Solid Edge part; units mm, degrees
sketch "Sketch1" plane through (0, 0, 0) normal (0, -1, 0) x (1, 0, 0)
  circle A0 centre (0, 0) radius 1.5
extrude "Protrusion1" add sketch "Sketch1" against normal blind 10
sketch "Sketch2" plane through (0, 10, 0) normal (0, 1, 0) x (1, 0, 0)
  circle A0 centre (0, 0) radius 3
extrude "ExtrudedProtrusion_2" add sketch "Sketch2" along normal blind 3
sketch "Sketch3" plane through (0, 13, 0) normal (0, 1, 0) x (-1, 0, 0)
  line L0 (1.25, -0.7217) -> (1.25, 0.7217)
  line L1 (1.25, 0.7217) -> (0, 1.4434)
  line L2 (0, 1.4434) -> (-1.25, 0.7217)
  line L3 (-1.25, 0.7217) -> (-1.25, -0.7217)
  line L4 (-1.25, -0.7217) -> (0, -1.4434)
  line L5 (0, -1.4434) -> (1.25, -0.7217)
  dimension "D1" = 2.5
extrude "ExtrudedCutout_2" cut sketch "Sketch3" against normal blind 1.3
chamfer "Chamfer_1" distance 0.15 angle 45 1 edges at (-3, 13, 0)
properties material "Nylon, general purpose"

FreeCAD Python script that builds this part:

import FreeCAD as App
import Part
import Sketcher
Q = App.Units.Quantity


def edges_at(feature, points):
    """Names of the edges that pass closest to the given points."""
    edges = feature.Shape.Edges
    near = lambda p: min(range(len(edges)), key=lambda i: edges[i].distToShape(Part.Vertex(*p))[0])
    return sorted({f"Edge{near(p) + 1}" for p in points})

doc = App.newDocument("Part")
params = doc.addObject("Spreadsheet::Sheet", "Params")
for row, (alias, value) in enumerate([
    ("sketch1_diameter", "3 mm"),
    ("pad1_length", "10 mm"),
    ("sketch2_diameter", "6 mm"),
    ("pad2_length", "3 mm"),
    ("pocket1_length", "1.3 mm"),
    ("chamfer_size", "0.15 mm"),
], start=1):
    params.set(f"A{row}", alias)
    params.set(f"B{row}", "=" + value)
    params.setAlias(f"B{row}", alias)

body = doc.addObject("PartDesign::Body", "Body")

sketch1 = body.newObject("Sketcher::SketchObject", "Sketch")
sketch1.AttachmentSupport = (doc.getObject("XZ_Plane"), [""])
sketch1.MapMode = "FlatFace"
sketch1.addGeometry(Part.Circle(App.Vector(0, 0, 0), App.Vector(0, 0, 1), 1.5), False)
sketch1.addConstraint(Sketcher.Constraint("Coincident", 0, 3, -1, 1))
sketch1.addConstraint(Sketcher.Constraint("Diameter", 0, Q("3 mm")))
sketch1.setExpression("Constraints[1]", "Params.sketch1_diameter")
pad1 = body.newObject("PartDesign::Pad", "Pad")
pad1.Profile = sketch1
pad1.setExpression("Length", "Params.pad1_length")
pad1.Reversed = True

sketch2 = body.newObject("Sketcher::SketchObject", "Sketch001")
sketch2.AttachmentSupport = (doc.getObject("XZ_Plane"), [""])
sketch2.MapMode = "FlatFace"
sketch2.AttachmentOffset = App.Placement(App.Vector(0, 0, -10), App.Rotation())
sketch2.addGeometry(Part.Circle(App.Vector(0, 0, 0), App.Vector(0, 0, 1), 3), False)
sketch2.addConstraint(Sketcher.Constraint("Coincident", 0, 3, -1, 1))
sketch2.addConstraint(Sketcher.Constraint("Diameter", 0, Q("6 mm")))
sketch2.setExpression("Constraints[1]", "Params.sketch2_diameter")
pad2 = body.newObject("PartDesign::Pad", "Pad001")
pad2.Profile = sketch2
pad2.setExpression("Length", "Params.pad2_length")
pad2.Reversed = True

sketch3 = body.newObject("Sketcher::SketchObject", "Sketch002")
sketch3.AttachmentSupport = (doc.getObject("XZ_Plane"), [""])
sketch3.MapMode = "FlatFace"
sketch3.AttachmentOffset = App.Placement(App.Vector(0, 0, -13), App.Rotation())
sketch3.addGeometry(Part.LineSegment(App.Vector(0, -1.4, 0), App.Vector(-1.2, -0.7, 0)), False)
sketch3.addGeometry(Part.LineSegment(App.Vector(-1.2, -0.7, 0), App.Vector(-1.2, 0.7, 0)), False)
sketch3.addGeometry(Part.LineSegment(App.Vector(-1.2, 0.7, 0), App.Vector(0, 1.4, 0)), False)
sketch3.addGeometry(Part.LineSegment(App.Vector(0, 1.4, 0), App.Vector(1.2, 0.7, 0)), False)
sketch3.addGeometry(Part.LineSegment(App.Vector(1.2, 0.7, 0), App.Vector(1.2, -0.7, 0)), False)
sketch3.addGeometry(Part.LineSegment(App.Vector(1.2, -0.7, 0), App.Vector(0, -1.4, 0)), False)
sketch3.addConstraint(Sketcher.Constraint("Coincident", 0, 2, 1, 1))
sketch3.addConstraint(Sketcher.Constraint("Coincident", 1, 2, 2, 1))
sketch3.addConstraint(Sketcher.Constraint("Coincident", 2, 2, 3, 1))
sketch3.addConstraint(Sketcher.Constraint("Coincident", 3, 2, 4, 1))
sketch3.addConstraint(Sketcher.Constraint("Coincident", 4, 2, 5, 1))
sketch3.addConstraint(Sketcher.Constraint("Coincident", 5, 2, 0, 1))
sketch3.addConstraint(Sketcher.Constraint("Vertical", 1))
sketch3.addConstraint(Sketcher.Constraint("Vertical", 4))
sketch3.addConstraint(Sketcher.Constraint("Symmetric", 0, 2, 3, 2, -1, 1))
sketch3.addConstraint(Sketcher.Constraint("Symmetric", 2, 2, 5, 2, -1, 1))
sketch3.addConstraint(Sketcher.Constraint("PointOnObject", 2, 2, -2))
sketch3.addConstraint(Sketcher.Constraint("Parallel", 2, 5))
sketch3.addConstraint(Sketcher.Constraint("Horizontal", 1, 2, 3, 2))
sketch3.addConstraint(Sketcher.Constraint("Angle", 0, Q("149.9996 deg")))
sketch3.addConstraint(Sketcher.Constraint("DistanceX", 1, 2, 3, 2, Q("2.5 mm")))
sketch3.addConstraint(Sketcher.Constraint("DistanceY", 1, 1, 1, 2, Q("1.4434 mm")))
pocket1 = body.newObject("PartDesign::Pocket", "Pocket")
pocket1.Profile = sketch3
pocket1.setExpression("Length", "Params.pocket1_length")
pocket1.Reversed = True
doc.recompute()

chamfer = body.newObject("PartDesign::Chamfer", "Chamfer")
chamfer.Base = (pocket1, edges_at(pocket1, [(-3, 13, 0)]))
chamfer.setExpression("Size", "Params.chamfer_size")

doc.recompute()
